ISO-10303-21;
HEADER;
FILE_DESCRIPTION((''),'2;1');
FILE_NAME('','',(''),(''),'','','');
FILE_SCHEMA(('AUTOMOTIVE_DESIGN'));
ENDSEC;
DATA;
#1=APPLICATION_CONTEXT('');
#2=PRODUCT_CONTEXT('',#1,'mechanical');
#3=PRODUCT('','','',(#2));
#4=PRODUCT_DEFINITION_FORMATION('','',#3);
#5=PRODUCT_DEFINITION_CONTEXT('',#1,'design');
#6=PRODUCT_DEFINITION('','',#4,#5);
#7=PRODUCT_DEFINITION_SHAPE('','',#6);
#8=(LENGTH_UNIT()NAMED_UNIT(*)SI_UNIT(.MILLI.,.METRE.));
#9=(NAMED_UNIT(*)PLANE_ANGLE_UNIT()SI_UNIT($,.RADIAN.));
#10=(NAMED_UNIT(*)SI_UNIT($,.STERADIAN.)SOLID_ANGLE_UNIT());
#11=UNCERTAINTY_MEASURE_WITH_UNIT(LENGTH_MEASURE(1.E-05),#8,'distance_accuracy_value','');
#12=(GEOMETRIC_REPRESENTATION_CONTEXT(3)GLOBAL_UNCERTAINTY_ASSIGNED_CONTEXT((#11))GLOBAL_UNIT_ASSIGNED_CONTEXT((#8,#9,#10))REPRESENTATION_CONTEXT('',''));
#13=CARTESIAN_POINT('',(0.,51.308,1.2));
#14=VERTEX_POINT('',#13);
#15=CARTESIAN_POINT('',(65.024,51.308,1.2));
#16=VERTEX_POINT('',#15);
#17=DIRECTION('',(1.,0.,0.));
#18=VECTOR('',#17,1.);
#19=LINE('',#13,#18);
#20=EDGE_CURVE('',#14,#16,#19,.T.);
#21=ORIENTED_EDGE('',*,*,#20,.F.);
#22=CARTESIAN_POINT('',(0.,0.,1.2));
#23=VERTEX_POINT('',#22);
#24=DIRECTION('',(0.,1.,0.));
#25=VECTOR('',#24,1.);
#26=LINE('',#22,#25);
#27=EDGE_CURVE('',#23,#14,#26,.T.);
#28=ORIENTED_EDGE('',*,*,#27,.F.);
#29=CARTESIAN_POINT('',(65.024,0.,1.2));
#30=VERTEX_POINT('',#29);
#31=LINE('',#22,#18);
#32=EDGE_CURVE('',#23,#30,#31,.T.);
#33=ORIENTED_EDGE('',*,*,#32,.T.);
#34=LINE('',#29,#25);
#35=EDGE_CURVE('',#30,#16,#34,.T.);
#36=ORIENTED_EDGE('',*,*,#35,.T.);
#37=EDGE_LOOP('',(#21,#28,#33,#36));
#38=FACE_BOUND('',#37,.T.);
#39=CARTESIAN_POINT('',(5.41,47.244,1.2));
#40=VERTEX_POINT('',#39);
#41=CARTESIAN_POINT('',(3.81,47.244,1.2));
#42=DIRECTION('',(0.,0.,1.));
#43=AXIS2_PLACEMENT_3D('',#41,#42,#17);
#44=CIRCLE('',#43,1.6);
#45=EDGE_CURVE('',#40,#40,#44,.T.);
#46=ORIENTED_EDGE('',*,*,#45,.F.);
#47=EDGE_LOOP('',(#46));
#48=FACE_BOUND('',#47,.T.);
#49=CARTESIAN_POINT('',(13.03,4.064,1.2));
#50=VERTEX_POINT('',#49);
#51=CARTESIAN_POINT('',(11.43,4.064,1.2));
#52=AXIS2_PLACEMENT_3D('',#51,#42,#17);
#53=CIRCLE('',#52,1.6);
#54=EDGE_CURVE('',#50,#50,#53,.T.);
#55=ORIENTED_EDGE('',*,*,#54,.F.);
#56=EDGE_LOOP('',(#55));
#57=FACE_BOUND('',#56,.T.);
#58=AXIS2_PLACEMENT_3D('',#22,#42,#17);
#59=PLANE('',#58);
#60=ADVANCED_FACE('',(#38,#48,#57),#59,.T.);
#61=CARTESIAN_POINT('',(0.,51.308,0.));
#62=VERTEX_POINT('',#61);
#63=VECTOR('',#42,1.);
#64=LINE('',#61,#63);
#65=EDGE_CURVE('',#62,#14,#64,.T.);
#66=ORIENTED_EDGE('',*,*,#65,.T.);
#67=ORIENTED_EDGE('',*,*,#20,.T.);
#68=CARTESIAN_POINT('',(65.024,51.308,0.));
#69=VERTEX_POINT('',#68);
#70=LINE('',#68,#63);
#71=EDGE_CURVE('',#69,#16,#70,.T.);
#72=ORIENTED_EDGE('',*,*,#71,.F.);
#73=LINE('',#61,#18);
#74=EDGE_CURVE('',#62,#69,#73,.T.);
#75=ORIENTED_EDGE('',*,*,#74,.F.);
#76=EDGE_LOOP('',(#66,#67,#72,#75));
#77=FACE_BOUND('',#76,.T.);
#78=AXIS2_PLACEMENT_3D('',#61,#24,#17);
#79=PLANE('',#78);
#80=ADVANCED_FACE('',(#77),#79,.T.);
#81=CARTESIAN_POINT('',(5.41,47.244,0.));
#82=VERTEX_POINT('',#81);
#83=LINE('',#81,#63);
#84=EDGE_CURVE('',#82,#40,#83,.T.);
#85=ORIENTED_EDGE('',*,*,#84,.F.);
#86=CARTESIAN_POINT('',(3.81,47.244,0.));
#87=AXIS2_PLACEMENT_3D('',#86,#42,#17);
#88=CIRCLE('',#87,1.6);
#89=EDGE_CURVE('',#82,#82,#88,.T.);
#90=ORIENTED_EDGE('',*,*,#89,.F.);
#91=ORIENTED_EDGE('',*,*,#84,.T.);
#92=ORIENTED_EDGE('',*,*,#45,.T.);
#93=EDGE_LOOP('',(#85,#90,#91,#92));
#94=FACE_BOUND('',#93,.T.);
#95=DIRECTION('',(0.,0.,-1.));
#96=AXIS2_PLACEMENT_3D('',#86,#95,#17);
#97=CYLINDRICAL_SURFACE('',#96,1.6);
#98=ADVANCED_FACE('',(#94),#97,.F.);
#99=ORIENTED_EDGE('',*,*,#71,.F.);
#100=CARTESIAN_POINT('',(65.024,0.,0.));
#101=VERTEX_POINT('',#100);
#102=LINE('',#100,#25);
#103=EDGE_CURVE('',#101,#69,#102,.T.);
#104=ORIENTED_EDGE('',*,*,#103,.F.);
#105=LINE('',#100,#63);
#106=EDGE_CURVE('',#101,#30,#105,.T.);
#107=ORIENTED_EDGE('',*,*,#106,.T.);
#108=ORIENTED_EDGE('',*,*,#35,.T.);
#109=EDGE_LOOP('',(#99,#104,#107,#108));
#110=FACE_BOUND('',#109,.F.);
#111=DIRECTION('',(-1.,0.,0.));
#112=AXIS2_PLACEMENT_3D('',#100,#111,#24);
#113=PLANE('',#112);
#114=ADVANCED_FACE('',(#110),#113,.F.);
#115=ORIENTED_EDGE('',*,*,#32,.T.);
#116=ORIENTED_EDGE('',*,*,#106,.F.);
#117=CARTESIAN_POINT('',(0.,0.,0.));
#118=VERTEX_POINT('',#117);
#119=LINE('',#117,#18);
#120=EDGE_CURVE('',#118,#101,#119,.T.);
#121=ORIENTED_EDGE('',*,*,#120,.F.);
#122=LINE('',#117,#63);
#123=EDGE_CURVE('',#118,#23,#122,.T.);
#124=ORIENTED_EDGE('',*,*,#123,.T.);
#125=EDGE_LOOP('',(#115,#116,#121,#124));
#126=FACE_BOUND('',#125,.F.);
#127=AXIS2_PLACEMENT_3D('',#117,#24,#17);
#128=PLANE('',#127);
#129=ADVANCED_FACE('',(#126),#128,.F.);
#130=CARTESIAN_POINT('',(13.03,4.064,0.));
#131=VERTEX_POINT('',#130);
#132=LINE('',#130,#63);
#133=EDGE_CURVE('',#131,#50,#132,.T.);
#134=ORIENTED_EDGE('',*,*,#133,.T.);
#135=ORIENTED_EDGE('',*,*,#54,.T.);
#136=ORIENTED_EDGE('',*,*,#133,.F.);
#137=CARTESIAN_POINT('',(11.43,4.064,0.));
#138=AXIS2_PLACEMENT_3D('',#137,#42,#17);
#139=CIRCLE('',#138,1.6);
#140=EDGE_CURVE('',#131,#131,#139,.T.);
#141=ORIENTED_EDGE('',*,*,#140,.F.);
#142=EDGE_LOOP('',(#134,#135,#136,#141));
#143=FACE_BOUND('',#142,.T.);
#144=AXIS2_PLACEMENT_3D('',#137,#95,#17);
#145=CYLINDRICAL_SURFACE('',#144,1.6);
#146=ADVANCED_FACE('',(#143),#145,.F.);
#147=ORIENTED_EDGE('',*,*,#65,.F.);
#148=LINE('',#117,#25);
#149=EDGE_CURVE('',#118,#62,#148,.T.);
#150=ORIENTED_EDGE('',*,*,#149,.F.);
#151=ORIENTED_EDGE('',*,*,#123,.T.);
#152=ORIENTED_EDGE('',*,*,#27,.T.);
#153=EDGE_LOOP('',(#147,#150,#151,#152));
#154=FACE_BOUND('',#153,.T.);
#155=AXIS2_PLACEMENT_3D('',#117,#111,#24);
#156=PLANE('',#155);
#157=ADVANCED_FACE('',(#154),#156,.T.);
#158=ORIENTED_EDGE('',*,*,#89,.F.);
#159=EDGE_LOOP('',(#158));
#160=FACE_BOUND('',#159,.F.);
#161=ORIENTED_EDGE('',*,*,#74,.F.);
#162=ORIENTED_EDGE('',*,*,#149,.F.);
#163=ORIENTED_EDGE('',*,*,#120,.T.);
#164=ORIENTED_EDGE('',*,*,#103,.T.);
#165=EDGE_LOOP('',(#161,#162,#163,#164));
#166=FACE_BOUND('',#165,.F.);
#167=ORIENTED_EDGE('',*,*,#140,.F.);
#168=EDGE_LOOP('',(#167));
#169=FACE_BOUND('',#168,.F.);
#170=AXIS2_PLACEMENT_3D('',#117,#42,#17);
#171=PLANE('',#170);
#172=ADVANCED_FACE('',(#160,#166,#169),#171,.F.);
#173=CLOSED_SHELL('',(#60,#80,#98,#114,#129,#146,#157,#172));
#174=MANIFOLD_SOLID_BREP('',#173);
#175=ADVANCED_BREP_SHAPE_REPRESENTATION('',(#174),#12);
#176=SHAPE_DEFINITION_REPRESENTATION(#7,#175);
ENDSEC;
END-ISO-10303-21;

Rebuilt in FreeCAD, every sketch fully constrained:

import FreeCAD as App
import Part
import Sketcher
from FreeCAD import Vector


def add_polygon(sketch, points):
    """Adds a closed chain of lines whose ends are joined by coincident constraints."""
    first, n = sketch.GeometryCount, len(points)
    for a, b in zip(points, points[1:] + points[:1]):
        sketch.addGeometry(Part.LineSegment(App.Vector(*a, 0), App.Vector(*b, 0)), False)
    for i in range(n):
        sketch.addConstraint(Sketcher.Constraint("Coincident", first + i, 2, first + (i + 1) % n, 1))

doc = App.newDocument("Part")
params = doc.addObject("Spreadsheet::Sheet", "Params")
for row, (alias, value) in enumerate([
    ("sketch1_diameter", "3.2 mm"),
    ("pad1_length", "1.2 mm"),
], start=1):
    params.set(f"A{row}", alias)
    params.set(f"B{row}", "=" + value)
    params.setAlias(f"B{row}", alias)

body = doc.addObject("PartDesign::Body", "Body")

sketch1 = body.newObject("Sketcher::SketchObject", "Sketch")
sketch1.AttachmentSupport = (doc.getObject("XY_Plane"), [""])
sketch1.MapMode = "FlatFace"
add_polygon(sketch1, [(0, 51.3), (0, 0), (65, 0), (65, 51.3)])
sketch1.addGeometry(Part.Circle(Vector(11.4, 4.1, 0), Vector(0, 0, 1), 1.6), False)
sketch1.addGeometry(Part.Circle(Vector(3.8, 47.2, 0), Vector(0, 0, 1), 1.6), False)
sketch1.addConstraint(Sketcher.Constraint("Vertical", 0))
sketch1.addConstraint(Sketcher.Constraint("Horizontal", 1))
sketch1.addConstraint(Sketcher.Constraint("Vertical", 2))
sketch1.addConstraint(Sketcher.Constraint("Horizontal", 3))
sketch1.addConstraint(Sketcher.Constraint("Coincident", 0, 2, -1, 1))
sketch1.addConstraint(Sketcher.Constraint("Equal", 4, 5))
sketch1.addConstraint(Sketcher.Constraint("Diameter", 4, 3.2))
sketch1.addConstraint(Sketcher.Constraint("DistanceX", 1, 1, 1, 2, 65.024))
sketch1.addConstraint(Sketcher.Constraint("DistanceY", 0, 2, 0, 1, 51.308))
sketch1.addConstraint(Sketcher.Constraint("DistanceX", -1, 1, 4, 3, 11.43))
sketch1.addConstraint(Sketcher.Constraint("DistanceX", -1, 1, 5, 3, 3.81))
sketch1.addConstraint(Sketcher.Constraint("DistanceY", 4, 3, 5, 3, 43.18))
sketch1.addConstraint(Sketcher.Constraint("DistanceY", -1, 1, 4, 3, 4.064))
sketch1.setExpression("Constraints[10]", "Params.sketch1_diameter")
pad1 = body.newObject("PartDesign::Pad", "Pad")
pad1.Profile = sketch1
pad1.setExpression("Length", "Params.pad1_length")

doc.recompute()
